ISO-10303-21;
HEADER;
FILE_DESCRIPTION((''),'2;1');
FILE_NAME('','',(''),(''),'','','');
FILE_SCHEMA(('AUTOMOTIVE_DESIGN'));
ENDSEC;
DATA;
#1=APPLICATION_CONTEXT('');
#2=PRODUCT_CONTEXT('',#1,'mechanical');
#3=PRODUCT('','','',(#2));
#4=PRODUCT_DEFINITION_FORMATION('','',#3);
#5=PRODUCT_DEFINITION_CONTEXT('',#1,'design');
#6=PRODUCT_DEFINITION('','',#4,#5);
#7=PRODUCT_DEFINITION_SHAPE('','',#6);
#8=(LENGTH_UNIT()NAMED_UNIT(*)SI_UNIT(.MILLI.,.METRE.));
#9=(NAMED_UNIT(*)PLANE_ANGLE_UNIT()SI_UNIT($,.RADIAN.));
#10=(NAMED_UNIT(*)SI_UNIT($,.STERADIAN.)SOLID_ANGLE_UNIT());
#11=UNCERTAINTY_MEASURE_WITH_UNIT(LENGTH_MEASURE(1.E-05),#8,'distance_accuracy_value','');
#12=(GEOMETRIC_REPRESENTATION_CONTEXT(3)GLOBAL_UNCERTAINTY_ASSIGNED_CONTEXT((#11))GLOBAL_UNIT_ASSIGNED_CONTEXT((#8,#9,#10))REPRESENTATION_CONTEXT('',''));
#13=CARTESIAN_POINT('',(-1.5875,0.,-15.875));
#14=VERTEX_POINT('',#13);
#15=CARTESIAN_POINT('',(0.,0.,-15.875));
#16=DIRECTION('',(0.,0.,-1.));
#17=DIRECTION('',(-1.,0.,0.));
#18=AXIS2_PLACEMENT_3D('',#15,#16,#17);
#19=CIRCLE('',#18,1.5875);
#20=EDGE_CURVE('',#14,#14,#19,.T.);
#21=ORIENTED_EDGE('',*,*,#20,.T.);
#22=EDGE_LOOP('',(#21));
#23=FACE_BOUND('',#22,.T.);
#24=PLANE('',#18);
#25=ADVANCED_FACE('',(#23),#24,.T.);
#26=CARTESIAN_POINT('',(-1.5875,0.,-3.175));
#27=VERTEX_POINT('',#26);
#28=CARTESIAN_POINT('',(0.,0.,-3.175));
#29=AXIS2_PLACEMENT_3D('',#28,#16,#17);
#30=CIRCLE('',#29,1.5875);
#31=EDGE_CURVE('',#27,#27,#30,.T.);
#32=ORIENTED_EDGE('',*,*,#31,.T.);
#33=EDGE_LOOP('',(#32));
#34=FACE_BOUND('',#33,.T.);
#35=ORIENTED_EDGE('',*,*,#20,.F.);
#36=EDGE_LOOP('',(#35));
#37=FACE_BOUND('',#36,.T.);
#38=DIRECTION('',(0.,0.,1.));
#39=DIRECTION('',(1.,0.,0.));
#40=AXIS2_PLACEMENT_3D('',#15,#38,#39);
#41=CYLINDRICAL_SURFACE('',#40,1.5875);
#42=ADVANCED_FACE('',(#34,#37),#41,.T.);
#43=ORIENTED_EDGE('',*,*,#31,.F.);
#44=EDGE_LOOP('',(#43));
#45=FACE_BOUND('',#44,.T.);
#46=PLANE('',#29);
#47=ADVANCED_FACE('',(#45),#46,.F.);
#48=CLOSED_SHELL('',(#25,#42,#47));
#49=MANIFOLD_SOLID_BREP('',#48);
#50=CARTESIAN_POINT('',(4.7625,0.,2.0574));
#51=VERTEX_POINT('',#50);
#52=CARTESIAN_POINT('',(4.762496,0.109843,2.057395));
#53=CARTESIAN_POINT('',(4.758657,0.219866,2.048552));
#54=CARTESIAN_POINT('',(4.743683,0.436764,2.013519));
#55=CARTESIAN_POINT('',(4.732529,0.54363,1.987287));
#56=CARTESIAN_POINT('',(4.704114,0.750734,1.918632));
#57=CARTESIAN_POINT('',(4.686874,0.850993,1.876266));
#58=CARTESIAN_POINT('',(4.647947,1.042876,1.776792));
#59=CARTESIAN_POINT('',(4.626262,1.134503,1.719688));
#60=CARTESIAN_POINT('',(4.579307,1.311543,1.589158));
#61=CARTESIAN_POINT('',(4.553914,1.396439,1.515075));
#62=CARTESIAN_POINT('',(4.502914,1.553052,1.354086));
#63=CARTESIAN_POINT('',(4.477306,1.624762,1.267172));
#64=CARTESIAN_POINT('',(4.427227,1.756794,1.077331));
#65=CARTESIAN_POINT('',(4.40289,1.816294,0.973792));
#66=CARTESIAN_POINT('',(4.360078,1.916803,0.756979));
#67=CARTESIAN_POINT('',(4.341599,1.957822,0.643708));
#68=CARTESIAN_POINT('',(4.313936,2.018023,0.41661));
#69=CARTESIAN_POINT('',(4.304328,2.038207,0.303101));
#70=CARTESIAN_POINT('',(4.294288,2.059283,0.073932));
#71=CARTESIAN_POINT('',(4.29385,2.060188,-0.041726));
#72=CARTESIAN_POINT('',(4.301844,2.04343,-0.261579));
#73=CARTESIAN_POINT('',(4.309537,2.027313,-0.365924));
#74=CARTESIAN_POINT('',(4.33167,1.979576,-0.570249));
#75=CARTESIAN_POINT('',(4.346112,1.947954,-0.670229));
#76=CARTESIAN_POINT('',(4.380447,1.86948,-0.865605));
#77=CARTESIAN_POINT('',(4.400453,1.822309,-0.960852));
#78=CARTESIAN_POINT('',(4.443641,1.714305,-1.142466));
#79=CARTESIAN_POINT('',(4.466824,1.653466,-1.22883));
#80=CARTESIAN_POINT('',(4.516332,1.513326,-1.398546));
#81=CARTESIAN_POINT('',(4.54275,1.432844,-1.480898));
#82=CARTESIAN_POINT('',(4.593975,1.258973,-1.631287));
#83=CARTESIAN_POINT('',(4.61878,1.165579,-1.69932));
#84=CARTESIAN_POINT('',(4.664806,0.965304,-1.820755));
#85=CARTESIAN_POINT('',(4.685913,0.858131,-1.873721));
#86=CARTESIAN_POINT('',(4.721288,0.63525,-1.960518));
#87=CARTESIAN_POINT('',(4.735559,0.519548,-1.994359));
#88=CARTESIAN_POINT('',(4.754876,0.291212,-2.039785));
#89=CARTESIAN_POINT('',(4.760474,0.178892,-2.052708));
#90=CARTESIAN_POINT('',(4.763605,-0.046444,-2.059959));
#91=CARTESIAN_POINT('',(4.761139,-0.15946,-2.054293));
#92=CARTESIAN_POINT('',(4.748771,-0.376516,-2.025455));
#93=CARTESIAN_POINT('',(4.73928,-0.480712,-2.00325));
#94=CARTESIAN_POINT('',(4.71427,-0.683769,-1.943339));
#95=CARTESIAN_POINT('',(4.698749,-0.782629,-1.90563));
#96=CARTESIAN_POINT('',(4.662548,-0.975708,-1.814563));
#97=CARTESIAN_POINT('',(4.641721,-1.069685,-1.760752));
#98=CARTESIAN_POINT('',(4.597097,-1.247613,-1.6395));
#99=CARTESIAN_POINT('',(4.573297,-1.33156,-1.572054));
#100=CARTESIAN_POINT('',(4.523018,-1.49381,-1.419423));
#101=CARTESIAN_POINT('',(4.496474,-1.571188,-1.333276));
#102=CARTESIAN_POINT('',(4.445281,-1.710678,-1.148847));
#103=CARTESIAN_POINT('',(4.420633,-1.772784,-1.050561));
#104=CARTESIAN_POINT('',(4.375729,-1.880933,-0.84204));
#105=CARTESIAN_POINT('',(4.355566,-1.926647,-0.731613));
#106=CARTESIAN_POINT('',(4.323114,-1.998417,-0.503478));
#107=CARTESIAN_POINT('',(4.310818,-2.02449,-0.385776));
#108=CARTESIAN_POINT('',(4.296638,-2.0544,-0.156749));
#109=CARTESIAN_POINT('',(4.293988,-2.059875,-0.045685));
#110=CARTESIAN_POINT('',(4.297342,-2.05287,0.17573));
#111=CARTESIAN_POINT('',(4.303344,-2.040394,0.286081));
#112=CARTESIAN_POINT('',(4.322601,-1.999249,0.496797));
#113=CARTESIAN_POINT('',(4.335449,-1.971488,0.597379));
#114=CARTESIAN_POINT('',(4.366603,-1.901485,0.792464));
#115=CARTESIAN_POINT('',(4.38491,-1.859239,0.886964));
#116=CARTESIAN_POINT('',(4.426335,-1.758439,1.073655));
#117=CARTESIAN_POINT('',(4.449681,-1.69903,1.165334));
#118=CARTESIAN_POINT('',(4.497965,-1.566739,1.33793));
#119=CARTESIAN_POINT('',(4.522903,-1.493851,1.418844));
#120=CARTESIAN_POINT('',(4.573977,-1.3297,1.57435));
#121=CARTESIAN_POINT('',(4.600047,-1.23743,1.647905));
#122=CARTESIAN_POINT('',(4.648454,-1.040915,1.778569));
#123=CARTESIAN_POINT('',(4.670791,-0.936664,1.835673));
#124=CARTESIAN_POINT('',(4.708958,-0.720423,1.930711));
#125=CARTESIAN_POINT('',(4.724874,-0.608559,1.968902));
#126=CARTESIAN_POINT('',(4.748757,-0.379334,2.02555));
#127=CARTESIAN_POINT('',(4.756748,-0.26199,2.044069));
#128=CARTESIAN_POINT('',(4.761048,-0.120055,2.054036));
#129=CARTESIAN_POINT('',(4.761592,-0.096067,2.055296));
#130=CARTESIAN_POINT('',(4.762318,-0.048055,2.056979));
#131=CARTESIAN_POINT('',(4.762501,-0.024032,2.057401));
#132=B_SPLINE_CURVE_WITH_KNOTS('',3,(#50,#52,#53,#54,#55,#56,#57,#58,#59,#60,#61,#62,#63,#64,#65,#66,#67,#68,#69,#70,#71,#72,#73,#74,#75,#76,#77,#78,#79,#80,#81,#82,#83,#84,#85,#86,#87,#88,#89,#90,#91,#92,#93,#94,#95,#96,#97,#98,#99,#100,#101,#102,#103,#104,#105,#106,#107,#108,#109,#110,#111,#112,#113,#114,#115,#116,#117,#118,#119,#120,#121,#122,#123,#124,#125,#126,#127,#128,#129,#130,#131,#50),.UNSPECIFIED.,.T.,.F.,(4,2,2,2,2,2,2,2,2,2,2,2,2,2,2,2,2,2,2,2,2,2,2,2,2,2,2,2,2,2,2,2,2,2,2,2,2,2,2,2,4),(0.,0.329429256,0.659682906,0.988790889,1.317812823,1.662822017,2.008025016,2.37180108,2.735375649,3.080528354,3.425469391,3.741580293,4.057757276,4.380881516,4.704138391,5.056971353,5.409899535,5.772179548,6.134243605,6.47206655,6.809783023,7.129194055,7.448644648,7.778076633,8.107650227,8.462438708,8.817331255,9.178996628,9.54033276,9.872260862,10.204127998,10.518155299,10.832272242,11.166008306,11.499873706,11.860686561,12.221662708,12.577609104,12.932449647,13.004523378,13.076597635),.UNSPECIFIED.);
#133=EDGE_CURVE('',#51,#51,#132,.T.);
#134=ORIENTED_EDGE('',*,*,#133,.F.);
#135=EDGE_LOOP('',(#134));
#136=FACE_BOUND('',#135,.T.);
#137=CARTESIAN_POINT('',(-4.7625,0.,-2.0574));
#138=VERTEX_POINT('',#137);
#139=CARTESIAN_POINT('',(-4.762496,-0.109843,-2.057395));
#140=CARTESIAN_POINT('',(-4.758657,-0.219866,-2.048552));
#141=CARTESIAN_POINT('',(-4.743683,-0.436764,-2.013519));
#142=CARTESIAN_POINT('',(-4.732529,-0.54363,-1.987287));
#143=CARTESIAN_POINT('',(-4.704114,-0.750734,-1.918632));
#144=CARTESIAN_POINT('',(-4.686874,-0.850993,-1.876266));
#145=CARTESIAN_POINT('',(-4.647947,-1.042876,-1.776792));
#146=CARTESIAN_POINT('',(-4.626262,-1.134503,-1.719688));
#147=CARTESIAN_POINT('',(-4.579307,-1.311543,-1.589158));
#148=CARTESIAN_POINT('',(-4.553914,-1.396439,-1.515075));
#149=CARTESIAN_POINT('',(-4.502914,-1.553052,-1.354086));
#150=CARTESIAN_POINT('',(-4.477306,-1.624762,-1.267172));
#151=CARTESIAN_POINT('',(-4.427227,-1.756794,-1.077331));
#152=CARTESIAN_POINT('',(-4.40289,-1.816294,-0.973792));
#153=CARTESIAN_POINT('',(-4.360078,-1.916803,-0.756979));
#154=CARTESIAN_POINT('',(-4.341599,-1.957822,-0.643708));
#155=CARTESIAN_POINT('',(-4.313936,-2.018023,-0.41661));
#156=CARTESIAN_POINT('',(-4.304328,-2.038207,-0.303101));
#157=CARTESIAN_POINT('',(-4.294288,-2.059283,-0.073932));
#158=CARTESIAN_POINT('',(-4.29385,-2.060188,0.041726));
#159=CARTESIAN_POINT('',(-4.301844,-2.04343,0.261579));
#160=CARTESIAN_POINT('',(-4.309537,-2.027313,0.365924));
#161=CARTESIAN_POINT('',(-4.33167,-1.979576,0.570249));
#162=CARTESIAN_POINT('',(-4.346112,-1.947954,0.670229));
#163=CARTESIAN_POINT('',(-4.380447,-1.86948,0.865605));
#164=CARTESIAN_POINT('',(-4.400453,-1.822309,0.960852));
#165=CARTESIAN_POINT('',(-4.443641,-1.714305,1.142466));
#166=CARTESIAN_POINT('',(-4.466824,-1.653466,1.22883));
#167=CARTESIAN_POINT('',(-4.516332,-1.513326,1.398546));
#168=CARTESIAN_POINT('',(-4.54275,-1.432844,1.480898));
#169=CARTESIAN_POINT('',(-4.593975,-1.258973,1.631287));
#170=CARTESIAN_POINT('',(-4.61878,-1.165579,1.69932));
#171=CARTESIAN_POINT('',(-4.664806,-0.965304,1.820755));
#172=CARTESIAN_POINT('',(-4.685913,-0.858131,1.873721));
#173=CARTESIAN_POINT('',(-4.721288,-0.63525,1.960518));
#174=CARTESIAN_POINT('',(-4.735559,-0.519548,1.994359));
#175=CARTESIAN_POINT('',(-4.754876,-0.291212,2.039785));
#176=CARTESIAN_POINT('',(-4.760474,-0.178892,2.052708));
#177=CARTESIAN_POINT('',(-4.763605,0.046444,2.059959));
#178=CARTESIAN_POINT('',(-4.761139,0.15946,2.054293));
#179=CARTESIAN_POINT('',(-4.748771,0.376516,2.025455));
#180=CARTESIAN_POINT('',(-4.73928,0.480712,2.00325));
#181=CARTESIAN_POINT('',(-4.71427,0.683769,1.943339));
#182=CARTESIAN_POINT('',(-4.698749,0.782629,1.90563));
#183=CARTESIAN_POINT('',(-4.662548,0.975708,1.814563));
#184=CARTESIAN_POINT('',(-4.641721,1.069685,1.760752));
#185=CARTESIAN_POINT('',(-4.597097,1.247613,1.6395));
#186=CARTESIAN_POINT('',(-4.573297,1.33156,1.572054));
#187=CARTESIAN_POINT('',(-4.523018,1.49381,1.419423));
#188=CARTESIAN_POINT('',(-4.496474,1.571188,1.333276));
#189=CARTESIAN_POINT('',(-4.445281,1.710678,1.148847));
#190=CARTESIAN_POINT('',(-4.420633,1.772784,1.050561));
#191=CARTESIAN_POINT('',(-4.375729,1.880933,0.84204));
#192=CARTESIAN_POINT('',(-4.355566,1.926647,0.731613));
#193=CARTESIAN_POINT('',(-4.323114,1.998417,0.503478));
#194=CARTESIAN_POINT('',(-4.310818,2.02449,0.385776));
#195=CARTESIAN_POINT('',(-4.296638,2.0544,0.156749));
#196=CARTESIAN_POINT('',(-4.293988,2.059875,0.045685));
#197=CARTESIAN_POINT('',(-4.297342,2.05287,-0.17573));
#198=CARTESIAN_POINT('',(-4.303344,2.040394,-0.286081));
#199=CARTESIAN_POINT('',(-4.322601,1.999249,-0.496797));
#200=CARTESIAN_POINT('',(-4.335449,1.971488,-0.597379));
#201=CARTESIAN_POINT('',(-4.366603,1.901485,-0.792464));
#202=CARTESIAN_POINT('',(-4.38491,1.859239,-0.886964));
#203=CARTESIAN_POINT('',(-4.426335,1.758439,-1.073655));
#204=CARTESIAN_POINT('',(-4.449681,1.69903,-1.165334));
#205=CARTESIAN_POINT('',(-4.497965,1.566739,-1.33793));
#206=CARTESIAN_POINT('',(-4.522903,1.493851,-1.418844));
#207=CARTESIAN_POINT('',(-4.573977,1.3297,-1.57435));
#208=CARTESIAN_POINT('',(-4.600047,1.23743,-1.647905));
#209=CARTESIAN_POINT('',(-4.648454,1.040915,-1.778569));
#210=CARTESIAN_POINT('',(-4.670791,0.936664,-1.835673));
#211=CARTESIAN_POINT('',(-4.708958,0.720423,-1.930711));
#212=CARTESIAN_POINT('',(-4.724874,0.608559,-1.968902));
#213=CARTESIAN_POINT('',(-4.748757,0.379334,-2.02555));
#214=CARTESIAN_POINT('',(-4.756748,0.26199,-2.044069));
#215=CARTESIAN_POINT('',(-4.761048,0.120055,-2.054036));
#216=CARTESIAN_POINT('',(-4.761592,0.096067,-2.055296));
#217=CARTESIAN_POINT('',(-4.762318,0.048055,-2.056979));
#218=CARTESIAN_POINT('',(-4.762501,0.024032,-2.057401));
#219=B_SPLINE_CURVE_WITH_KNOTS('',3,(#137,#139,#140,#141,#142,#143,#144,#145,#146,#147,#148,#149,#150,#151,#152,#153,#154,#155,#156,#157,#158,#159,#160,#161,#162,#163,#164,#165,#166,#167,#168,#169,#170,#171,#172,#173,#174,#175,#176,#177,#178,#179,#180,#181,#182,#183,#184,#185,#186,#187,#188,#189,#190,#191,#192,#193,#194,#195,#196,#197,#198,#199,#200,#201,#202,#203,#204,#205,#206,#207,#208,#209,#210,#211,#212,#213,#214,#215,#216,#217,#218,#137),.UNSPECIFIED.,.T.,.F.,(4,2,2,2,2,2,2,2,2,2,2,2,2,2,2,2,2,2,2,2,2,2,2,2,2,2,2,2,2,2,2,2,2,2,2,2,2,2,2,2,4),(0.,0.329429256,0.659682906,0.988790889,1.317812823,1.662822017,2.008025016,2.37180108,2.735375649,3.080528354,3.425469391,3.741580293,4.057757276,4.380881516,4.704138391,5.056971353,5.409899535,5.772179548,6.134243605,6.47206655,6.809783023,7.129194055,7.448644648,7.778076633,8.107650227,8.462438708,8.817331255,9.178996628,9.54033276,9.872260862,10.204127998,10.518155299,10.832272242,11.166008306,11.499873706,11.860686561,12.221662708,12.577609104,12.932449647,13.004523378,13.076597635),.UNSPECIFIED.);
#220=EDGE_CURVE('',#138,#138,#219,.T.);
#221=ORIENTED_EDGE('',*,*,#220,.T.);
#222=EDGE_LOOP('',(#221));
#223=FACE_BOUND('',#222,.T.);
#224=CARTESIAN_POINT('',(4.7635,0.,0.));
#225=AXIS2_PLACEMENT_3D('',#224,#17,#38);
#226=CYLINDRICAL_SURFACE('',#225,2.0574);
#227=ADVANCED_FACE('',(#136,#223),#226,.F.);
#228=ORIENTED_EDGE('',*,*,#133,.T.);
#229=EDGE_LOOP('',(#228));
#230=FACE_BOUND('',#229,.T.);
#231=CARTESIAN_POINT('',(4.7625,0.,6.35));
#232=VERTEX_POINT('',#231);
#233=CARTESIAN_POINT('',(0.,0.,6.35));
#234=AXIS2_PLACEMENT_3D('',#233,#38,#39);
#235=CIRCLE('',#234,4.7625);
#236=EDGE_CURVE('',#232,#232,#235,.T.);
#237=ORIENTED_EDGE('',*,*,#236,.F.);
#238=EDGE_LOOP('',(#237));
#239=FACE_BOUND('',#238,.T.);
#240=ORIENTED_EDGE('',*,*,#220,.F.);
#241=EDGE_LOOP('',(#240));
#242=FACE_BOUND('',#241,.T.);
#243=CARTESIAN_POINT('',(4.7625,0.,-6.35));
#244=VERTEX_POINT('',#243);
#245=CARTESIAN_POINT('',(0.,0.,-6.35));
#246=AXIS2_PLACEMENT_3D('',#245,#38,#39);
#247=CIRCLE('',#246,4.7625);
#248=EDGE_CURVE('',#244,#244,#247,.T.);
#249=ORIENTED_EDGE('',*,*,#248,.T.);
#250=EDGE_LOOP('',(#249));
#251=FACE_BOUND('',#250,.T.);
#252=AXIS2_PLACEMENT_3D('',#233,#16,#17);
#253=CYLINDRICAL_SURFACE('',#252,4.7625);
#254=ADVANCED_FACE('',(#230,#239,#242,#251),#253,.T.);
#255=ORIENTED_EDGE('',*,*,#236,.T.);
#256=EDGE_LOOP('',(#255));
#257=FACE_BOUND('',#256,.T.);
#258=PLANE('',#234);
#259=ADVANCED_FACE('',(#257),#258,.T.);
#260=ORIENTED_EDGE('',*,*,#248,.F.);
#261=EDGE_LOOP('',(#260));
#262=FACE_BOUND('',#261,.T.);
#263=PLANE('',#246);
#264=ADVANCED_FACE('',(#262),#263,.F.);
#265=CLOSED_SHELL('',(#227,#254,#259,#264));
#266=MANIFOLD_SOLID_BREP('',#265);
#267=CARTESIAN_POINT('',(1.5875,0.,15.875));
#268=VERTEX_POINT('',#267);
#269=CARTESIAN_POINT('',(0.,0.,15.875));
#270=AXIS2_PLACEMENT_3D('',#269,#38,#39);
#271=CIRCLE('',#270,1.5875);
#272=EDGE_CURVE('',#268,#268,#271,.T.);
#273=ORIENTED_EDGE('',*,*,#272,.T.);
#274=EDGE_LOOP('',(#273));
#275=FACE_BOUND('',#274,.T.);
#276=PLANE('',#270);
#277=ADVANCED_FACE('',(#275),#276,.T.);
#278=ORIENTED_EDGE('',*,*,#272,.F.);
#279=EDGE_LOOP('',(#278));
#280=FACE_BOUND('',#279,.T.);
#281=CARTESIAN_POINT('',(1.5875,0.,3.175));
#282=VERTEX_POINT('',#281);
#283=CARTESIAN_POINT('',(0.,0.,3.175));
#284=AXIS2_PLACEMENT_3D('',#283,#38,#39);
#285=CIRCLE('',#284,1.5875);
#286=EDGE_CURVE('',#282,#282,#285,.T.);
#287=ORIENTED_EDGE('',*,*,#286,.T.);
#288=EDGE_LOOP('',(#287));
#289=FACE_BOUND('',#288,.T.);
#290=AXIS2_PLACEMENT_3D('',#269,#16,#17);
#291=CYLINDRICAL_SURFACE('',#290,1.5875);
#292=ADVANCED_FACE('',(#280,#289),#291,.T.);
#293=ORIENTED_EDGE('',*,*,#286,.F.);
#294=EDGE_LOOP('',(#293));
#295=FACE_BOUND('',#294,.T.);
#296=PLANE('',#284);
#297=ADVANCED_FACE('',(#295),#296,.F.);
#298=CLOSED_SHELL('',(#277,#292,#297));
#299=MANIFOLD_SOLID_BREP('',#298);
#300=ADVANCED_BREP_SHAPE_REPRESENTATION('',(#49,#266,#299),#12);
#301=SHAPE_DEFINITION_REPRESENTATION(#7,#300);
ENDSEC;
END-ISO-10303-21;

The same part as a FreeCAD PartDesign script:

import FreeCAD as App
import Part
import Sketcher
from FreeCAD import Vector
Q = App.Units.Quantity

doc = App.newDocument("Part")
body = doc.addObject("PartDesign::Body", "Body")

sketch1 = body.newObject("Sketcher::SketchObject", "Sketch")
sketch1.AttachmentSupport = (doc.getObject("XY_Plane"), [""])
sketch1.MapMode = "FlatFace"
sketch1.addGeometry(Part.Circle(Vector(0, 0, 0), Vector(0, 0, 1), 4.8), False)
sketch1.addConstraint([
    Sketcher.Constraint("Coincident", 0, 3, -1, 1),
    Sketcher.Constraint("Diameter", 0, Q("0.375 in")),
])
pad1 = body.newObject("PartDesign::Pad", "Pad")
pad1.Profile = sketch1
pad1.Type = "TwoLengths"
pad1.Length = Q("0.25 in")
pad1.Length2 = Q("0.25 in")

sketch2 = body.newObject("Sketcher::SketchObject", "Sketch001")
sketch2.AttachmentSupport = (doc.getObject("YZ_Plane"), [""])
sketch2.MapMode = "FlatFace"
sketch2.addGeometry(Part.Circle(Vector(0, 0, 0), Vector(0, 0, 1), 2.1), False)
sketch2.addConstraint([
    Sketcher.Constraint("Coincident", 0, 3, -1, 1),
    Sketcher.Constraint("Diameter", 0, Q("0.162 in")),
])
pocket1 = body.newObject("PartDesign::Pocket", "Pocket")
pocket1.Profile = sketch2
pocket1.Type = "UpToFirst"

sketch3 = body.newObject("Sketcher::SketchObject", "Sketch002")
sketch3.AttachmentSupport = (doc.getObject("YZ_Plane"), [""])
sketch3.MapMode = "FlatFace"
sketch3.addGeometry(Part.Circle(Vector(0, 0, 0), Vector(0, 0, 1), 2.1), False)
sketch3.addConstraint([
    Sketcher.Constraint("Coincident", 0, 3, -1, 1),
    Sketcher.Constraint("Diameter", 0, Q("0.162 in")),
])
pocket2 = body.newObject("PartDesign::Pocket", "Pocket001")
pocket2.Profile = sketch3
pocket2.Length = Q("0.1875 in")
pocket2.Reversed = True
body2 = doc.addObject("PartDesign::Body", "Body001")

sketch4 = body2.newObject("Sketcher::SketchObject", "Sketch003")
sketch4.AttachmentSupport = (doc.getObject("XY_Plane001"), [""])
sketch4.MapMode = "FlatFace"
sketch4.AttachmentOffset = App.Placement(Vector(0, 0, 0.25 * 25.4), App.Rotation())
sketch4.addGeometry(Part.Circle(Vector(0, 0, 0), Vector(0, 0, 1), 1.6), False)
sketch4.addConstraint([
    Sketcher.Constraint("Coincident", 0, 3, -1, 1),
    Sketcher.Constraint("Diameter", 0, Q("0.125 in")),
])
pad2 = body2.newObject("PartDesign::Pad", "Pad001")
pad2.Profile = sketch4
pad2.Type = "TwoLengths"
pad2.Length = Q("0.375 in")
pad2.Length2 = Q("0.125 in")
body3 = doc.addObject("PartDesign::Body", "Body002")

sketch5 = body3.newObject("Sketcher::SketchObject", "Sketch004")
sketch5.AttachmentSupport = (doc.getObject("XY_Plane002"), [""])
sketch5.MapMode = "FlatFace"
sketch5.AttachmentOffset = App.Placement(Vector(0, 0, -0.25 * 25.4), App.Rotation())
sketch5.addGeometry(Part.Circle(Vector(0, 0, 0), Vector(0, 0, 1), 1.6), False)
sketch5.addConstraint([
    Sketcher.Constraint("Coincident", 0, 3, -1, 1),
    Sketcher.Constraint("Diameter", 0, Q("0.125 in")),
])
pad3 = body3.newObject("PartDesign::Pad", "Pad002")
pad3.Profile = sketch5
pad3.Type = "TwoLengths"
pad3.Length = Q("0.375 in")
pad3.Length2 = Q("0.125 in")
pad3.Reversed = True

doc.recompute()
